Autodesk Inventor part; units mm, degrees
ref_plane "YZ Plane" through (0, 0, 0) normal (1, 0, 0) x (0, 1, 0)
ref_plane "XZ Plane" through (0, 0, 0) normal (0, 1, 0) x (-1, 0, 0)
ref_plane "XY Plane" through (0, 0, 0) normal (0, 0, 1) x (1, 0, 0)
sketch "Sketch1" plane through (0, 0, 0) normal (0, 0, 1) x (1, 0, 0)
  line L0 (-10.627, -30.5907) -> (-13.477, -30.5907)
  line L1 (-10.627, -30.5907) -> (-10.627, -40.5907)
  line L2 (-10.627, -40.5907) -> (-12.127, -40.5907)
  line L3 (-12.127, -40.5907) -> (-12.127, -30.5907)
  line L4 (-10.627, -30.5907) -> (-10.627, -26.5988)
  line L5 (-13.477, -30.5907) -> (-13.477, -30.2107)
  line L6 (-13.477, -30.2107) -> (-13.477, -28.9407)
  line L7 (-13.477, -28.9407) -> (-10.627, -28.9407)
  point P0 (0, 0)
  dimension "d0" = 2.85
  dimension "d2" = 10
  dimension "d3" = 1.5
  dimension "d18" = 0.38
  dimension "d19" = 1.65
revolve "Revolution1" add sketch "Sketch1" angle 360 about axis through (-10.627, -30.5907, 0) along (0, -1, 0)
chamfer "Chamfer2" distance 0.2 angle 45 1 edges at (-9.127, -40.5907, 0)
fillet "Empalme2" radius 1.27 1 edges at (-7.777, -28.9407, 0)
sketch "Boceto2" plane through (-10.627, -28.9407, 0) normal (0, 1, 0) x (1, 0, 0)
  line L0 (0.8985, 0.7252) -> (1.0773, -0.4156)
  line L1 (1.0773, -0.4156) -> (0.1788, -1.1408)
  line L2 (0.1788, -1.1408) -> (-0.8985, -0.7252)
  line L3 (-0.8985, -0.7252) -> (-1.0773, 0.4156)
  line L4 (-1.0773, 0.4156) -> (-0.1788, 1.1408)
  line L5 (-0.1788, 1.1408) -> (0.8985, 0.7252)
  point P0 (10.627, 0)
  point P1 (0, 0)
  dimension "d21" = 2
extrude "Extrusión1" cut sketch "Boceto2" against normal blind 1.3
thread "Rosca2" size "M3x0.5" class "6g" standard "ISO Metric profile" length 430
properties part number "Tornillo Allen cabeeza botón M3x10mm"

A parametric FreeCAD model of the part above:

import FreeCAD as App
import Part
import Sketcher
Q = App.Units.Quantity


def edges_at(feature, points):
    """Names of the edges that pass closest to the given points."""
    edges = feature.Shape.Edges
    near = lambda p: min(range(len(edges)), key=lambda i: edges[i].distToShape(Part.Vertex(*p))[0])
    return sorted({f"Edge{near(p) + 1}" for p in points})


def add_polygon(sketch, points):
    """Adds a closed chain of lines whose ends are joined by coincident constraints."""
    first, n = sketch.GeometryCount, len(points)
    for a, b in zip(points, points[1:] + points[:1]):
        sketch.addGeometry(Part.LineSegment(App.Vector(*a, 0), App.Vector(*b, 0)), False)
    for i in range(n):
        sketch.addConstraint(Sketcher.Constraint("Coincident", first + i, 2, first + (i + 1) % n, 1))

doc = App.newDocument("Part")
params = doc.addObject("Spreadsheet::Sheet", "Params")
for row, (alias, value) in enumerate([
    ("sketch1_height", "10 mm"),
    ("sketch1_width", "1.5 mm"),
    ("sketch1_width2", "2.85 mm"),
    ("sketch1_height2", "1.65 mm"),
    ("revolution_angle", "360 deg"),
    ("chamfer_size", "0.2 mm"),
    ("fillet_radius", "1.27 mm"),
    ("pocket1_length", "1.3 mm"),
], start=1):
    params.set(f"A{row}", alias)
    params.set(f"B{row}", "=" + value)
    params.setAlias(f"B{row}", alias)

body = doc.addObject("PartDesign::Body", "Body")

sketch1 = body.newObject("Sketcher::SketchObject", "Sketch")
sketch1.AttachmentSupport = (doc.getObject("XY_Plane"), [""])
sketch1.MapMode = "FlatFace"
add_polygon(sketch1, [(-10.6, -40.6), (-10.6, -28.9), (-13.5, -28.9), (-13.5, -30.6), (-12.1, -30.6), (-12.1, -40.6)])
sketch1.addGeometry(Part.LineSegment(App.Vector(-10.6, -28.9, 0), App.Vector(-10.6, -40.6, 0)), True)
sketch1.addConstraint([
    Sketcher.Constraint("Vertical", 0),
    Sketcher.Constraint("Horizontal", 1),
    Sketcher.Constraint("Vertical", 2),
    Sketcher.Constraint("Horizontal", 3),
    Sketcher.Constraint("Vertical", 4),
    Sketcher.Constraint("Horizontal", 5),
    Sketcher.Constraint("Vertical", 6),
    Sketcher.Constraint("Coincident", 6, 1, 0, 2),
    Sketcher.Constraint("Horizontal", 4, 2, 6, 2),
    Sketcher.Constraint("DistanceY", 4, 2, 4, 1, Q("10 mm")),
    Sketcher.Constraint("DistanceX", 5, 1, 5, 2, Q("1.5 mm")),
    Sketcher.Constraint("DistanceX", 1, 2, 1, 1, Q("2.85 mm")),
    Sketcher.Constraint("DistanceY", 2, 2, 2, 1, Q("1.65 mm")),
    Sketcher.Constraint("DistanceX", 0, 2, -1, 1, Q("10.627 mm")),
    Sketcher.Constraint("DistanceY", 0, 2, -1, 1, Q("28.9407 mm")),
])
sketch1.setExpression("Constraints[15]", "Params.sketch1_height")
sketch1.setExpression("Constraints[16]", "Params.sketch1_width")
sketch1.setExpression("Constraints[17]", "Params.sketch1_width2")
sketch1.setExpression("Constraints[18]", "Params.sketch1_height2")
revolution = body.newObject("PartDesign::Revolution", "Revolution")
revolution.Profile = sketch1
revolution.ReferenceAxis = (sketch1, ["Axis0"])
revolution.setExpression("Angle", "Params.revolution_angle")
doc.recompute()

chamfer = body.newObject("PartDesign::Chamfer", "Chamfer")
chamfer.Base = (revolution, edges_at(revolution, [(-9.127, -40.591, 0)]))
chamfer.setExpression("Size", "Params.chamfer_size")
doc.recompute()

fillet = body.newObject("PartDesign::Fillet", "Fillet")
fillet.Base = (chamfer, edges_at(chamfer, [(-7.777, -28.941, 0)]))
fillet.setExpression("Radius", "Params.fillet_radius")

sketch2 = body.newObject("Sketcher::SketchObject", "Sketch001")
sketch2.AttachmentSupport = (doc.getObject("XZ_Plane"), [""])
sketch2.MapMode = "FlatFace"
sketch2.AttachmentOffset = App.Placement(App.Vector(0, 0, 28.9407), App.Rotation())
add_polygon(sketch2, [(-9.5, 0.4), (-9.7, -0.7), (-10.8, -1.1), (-11.7, -0.4), (-11.5, 0.7), (-10.4, 1.1)])
sketch2.addConstraint([
    Sketcher.Constraint("Parallel", 0, 3),
    Sketcher.Constraint("Parallel", 1, 4),
    Sketcher.Constraint("Parallel", 2, 5),
    Sketcher.Constraint("Equal", 0, 1),
    Sketcher.Constraint("Equal", 1, 2),
    Sketcher.Constraint("Equal", 2, 3),
    Sketcher.Constraint("DistanceY", 1, 2, 3, 2, Q("1.866 mm")),
    Sketcher.Constraint("DistanceX", 3, 2, 0, 2, Q("1.797 mm")),
    Sketcher.Constraint("DistanceX", 2, 2, 4, 2, Q("1.256 mm")),
    Sketcher.Constraint("Distance", 0, Q("1.1547 mm")),
    Sketcher.Constraint("DistanceX", 0, 2, -1, 1, Q("9.7285 mm")),
    Sketcher.Constraint("DistanceY", 0, 2, -1, 1, Q("0.7252 mm")),
])
pocket1 = body.newObject("PartDesign::Pocket", "Pocket")
pocket1.Profile = sketch2
pocket1.setExpression("Length", "Params.pocket1_length")
pocket1.Reversed = True

doc.recompute()
